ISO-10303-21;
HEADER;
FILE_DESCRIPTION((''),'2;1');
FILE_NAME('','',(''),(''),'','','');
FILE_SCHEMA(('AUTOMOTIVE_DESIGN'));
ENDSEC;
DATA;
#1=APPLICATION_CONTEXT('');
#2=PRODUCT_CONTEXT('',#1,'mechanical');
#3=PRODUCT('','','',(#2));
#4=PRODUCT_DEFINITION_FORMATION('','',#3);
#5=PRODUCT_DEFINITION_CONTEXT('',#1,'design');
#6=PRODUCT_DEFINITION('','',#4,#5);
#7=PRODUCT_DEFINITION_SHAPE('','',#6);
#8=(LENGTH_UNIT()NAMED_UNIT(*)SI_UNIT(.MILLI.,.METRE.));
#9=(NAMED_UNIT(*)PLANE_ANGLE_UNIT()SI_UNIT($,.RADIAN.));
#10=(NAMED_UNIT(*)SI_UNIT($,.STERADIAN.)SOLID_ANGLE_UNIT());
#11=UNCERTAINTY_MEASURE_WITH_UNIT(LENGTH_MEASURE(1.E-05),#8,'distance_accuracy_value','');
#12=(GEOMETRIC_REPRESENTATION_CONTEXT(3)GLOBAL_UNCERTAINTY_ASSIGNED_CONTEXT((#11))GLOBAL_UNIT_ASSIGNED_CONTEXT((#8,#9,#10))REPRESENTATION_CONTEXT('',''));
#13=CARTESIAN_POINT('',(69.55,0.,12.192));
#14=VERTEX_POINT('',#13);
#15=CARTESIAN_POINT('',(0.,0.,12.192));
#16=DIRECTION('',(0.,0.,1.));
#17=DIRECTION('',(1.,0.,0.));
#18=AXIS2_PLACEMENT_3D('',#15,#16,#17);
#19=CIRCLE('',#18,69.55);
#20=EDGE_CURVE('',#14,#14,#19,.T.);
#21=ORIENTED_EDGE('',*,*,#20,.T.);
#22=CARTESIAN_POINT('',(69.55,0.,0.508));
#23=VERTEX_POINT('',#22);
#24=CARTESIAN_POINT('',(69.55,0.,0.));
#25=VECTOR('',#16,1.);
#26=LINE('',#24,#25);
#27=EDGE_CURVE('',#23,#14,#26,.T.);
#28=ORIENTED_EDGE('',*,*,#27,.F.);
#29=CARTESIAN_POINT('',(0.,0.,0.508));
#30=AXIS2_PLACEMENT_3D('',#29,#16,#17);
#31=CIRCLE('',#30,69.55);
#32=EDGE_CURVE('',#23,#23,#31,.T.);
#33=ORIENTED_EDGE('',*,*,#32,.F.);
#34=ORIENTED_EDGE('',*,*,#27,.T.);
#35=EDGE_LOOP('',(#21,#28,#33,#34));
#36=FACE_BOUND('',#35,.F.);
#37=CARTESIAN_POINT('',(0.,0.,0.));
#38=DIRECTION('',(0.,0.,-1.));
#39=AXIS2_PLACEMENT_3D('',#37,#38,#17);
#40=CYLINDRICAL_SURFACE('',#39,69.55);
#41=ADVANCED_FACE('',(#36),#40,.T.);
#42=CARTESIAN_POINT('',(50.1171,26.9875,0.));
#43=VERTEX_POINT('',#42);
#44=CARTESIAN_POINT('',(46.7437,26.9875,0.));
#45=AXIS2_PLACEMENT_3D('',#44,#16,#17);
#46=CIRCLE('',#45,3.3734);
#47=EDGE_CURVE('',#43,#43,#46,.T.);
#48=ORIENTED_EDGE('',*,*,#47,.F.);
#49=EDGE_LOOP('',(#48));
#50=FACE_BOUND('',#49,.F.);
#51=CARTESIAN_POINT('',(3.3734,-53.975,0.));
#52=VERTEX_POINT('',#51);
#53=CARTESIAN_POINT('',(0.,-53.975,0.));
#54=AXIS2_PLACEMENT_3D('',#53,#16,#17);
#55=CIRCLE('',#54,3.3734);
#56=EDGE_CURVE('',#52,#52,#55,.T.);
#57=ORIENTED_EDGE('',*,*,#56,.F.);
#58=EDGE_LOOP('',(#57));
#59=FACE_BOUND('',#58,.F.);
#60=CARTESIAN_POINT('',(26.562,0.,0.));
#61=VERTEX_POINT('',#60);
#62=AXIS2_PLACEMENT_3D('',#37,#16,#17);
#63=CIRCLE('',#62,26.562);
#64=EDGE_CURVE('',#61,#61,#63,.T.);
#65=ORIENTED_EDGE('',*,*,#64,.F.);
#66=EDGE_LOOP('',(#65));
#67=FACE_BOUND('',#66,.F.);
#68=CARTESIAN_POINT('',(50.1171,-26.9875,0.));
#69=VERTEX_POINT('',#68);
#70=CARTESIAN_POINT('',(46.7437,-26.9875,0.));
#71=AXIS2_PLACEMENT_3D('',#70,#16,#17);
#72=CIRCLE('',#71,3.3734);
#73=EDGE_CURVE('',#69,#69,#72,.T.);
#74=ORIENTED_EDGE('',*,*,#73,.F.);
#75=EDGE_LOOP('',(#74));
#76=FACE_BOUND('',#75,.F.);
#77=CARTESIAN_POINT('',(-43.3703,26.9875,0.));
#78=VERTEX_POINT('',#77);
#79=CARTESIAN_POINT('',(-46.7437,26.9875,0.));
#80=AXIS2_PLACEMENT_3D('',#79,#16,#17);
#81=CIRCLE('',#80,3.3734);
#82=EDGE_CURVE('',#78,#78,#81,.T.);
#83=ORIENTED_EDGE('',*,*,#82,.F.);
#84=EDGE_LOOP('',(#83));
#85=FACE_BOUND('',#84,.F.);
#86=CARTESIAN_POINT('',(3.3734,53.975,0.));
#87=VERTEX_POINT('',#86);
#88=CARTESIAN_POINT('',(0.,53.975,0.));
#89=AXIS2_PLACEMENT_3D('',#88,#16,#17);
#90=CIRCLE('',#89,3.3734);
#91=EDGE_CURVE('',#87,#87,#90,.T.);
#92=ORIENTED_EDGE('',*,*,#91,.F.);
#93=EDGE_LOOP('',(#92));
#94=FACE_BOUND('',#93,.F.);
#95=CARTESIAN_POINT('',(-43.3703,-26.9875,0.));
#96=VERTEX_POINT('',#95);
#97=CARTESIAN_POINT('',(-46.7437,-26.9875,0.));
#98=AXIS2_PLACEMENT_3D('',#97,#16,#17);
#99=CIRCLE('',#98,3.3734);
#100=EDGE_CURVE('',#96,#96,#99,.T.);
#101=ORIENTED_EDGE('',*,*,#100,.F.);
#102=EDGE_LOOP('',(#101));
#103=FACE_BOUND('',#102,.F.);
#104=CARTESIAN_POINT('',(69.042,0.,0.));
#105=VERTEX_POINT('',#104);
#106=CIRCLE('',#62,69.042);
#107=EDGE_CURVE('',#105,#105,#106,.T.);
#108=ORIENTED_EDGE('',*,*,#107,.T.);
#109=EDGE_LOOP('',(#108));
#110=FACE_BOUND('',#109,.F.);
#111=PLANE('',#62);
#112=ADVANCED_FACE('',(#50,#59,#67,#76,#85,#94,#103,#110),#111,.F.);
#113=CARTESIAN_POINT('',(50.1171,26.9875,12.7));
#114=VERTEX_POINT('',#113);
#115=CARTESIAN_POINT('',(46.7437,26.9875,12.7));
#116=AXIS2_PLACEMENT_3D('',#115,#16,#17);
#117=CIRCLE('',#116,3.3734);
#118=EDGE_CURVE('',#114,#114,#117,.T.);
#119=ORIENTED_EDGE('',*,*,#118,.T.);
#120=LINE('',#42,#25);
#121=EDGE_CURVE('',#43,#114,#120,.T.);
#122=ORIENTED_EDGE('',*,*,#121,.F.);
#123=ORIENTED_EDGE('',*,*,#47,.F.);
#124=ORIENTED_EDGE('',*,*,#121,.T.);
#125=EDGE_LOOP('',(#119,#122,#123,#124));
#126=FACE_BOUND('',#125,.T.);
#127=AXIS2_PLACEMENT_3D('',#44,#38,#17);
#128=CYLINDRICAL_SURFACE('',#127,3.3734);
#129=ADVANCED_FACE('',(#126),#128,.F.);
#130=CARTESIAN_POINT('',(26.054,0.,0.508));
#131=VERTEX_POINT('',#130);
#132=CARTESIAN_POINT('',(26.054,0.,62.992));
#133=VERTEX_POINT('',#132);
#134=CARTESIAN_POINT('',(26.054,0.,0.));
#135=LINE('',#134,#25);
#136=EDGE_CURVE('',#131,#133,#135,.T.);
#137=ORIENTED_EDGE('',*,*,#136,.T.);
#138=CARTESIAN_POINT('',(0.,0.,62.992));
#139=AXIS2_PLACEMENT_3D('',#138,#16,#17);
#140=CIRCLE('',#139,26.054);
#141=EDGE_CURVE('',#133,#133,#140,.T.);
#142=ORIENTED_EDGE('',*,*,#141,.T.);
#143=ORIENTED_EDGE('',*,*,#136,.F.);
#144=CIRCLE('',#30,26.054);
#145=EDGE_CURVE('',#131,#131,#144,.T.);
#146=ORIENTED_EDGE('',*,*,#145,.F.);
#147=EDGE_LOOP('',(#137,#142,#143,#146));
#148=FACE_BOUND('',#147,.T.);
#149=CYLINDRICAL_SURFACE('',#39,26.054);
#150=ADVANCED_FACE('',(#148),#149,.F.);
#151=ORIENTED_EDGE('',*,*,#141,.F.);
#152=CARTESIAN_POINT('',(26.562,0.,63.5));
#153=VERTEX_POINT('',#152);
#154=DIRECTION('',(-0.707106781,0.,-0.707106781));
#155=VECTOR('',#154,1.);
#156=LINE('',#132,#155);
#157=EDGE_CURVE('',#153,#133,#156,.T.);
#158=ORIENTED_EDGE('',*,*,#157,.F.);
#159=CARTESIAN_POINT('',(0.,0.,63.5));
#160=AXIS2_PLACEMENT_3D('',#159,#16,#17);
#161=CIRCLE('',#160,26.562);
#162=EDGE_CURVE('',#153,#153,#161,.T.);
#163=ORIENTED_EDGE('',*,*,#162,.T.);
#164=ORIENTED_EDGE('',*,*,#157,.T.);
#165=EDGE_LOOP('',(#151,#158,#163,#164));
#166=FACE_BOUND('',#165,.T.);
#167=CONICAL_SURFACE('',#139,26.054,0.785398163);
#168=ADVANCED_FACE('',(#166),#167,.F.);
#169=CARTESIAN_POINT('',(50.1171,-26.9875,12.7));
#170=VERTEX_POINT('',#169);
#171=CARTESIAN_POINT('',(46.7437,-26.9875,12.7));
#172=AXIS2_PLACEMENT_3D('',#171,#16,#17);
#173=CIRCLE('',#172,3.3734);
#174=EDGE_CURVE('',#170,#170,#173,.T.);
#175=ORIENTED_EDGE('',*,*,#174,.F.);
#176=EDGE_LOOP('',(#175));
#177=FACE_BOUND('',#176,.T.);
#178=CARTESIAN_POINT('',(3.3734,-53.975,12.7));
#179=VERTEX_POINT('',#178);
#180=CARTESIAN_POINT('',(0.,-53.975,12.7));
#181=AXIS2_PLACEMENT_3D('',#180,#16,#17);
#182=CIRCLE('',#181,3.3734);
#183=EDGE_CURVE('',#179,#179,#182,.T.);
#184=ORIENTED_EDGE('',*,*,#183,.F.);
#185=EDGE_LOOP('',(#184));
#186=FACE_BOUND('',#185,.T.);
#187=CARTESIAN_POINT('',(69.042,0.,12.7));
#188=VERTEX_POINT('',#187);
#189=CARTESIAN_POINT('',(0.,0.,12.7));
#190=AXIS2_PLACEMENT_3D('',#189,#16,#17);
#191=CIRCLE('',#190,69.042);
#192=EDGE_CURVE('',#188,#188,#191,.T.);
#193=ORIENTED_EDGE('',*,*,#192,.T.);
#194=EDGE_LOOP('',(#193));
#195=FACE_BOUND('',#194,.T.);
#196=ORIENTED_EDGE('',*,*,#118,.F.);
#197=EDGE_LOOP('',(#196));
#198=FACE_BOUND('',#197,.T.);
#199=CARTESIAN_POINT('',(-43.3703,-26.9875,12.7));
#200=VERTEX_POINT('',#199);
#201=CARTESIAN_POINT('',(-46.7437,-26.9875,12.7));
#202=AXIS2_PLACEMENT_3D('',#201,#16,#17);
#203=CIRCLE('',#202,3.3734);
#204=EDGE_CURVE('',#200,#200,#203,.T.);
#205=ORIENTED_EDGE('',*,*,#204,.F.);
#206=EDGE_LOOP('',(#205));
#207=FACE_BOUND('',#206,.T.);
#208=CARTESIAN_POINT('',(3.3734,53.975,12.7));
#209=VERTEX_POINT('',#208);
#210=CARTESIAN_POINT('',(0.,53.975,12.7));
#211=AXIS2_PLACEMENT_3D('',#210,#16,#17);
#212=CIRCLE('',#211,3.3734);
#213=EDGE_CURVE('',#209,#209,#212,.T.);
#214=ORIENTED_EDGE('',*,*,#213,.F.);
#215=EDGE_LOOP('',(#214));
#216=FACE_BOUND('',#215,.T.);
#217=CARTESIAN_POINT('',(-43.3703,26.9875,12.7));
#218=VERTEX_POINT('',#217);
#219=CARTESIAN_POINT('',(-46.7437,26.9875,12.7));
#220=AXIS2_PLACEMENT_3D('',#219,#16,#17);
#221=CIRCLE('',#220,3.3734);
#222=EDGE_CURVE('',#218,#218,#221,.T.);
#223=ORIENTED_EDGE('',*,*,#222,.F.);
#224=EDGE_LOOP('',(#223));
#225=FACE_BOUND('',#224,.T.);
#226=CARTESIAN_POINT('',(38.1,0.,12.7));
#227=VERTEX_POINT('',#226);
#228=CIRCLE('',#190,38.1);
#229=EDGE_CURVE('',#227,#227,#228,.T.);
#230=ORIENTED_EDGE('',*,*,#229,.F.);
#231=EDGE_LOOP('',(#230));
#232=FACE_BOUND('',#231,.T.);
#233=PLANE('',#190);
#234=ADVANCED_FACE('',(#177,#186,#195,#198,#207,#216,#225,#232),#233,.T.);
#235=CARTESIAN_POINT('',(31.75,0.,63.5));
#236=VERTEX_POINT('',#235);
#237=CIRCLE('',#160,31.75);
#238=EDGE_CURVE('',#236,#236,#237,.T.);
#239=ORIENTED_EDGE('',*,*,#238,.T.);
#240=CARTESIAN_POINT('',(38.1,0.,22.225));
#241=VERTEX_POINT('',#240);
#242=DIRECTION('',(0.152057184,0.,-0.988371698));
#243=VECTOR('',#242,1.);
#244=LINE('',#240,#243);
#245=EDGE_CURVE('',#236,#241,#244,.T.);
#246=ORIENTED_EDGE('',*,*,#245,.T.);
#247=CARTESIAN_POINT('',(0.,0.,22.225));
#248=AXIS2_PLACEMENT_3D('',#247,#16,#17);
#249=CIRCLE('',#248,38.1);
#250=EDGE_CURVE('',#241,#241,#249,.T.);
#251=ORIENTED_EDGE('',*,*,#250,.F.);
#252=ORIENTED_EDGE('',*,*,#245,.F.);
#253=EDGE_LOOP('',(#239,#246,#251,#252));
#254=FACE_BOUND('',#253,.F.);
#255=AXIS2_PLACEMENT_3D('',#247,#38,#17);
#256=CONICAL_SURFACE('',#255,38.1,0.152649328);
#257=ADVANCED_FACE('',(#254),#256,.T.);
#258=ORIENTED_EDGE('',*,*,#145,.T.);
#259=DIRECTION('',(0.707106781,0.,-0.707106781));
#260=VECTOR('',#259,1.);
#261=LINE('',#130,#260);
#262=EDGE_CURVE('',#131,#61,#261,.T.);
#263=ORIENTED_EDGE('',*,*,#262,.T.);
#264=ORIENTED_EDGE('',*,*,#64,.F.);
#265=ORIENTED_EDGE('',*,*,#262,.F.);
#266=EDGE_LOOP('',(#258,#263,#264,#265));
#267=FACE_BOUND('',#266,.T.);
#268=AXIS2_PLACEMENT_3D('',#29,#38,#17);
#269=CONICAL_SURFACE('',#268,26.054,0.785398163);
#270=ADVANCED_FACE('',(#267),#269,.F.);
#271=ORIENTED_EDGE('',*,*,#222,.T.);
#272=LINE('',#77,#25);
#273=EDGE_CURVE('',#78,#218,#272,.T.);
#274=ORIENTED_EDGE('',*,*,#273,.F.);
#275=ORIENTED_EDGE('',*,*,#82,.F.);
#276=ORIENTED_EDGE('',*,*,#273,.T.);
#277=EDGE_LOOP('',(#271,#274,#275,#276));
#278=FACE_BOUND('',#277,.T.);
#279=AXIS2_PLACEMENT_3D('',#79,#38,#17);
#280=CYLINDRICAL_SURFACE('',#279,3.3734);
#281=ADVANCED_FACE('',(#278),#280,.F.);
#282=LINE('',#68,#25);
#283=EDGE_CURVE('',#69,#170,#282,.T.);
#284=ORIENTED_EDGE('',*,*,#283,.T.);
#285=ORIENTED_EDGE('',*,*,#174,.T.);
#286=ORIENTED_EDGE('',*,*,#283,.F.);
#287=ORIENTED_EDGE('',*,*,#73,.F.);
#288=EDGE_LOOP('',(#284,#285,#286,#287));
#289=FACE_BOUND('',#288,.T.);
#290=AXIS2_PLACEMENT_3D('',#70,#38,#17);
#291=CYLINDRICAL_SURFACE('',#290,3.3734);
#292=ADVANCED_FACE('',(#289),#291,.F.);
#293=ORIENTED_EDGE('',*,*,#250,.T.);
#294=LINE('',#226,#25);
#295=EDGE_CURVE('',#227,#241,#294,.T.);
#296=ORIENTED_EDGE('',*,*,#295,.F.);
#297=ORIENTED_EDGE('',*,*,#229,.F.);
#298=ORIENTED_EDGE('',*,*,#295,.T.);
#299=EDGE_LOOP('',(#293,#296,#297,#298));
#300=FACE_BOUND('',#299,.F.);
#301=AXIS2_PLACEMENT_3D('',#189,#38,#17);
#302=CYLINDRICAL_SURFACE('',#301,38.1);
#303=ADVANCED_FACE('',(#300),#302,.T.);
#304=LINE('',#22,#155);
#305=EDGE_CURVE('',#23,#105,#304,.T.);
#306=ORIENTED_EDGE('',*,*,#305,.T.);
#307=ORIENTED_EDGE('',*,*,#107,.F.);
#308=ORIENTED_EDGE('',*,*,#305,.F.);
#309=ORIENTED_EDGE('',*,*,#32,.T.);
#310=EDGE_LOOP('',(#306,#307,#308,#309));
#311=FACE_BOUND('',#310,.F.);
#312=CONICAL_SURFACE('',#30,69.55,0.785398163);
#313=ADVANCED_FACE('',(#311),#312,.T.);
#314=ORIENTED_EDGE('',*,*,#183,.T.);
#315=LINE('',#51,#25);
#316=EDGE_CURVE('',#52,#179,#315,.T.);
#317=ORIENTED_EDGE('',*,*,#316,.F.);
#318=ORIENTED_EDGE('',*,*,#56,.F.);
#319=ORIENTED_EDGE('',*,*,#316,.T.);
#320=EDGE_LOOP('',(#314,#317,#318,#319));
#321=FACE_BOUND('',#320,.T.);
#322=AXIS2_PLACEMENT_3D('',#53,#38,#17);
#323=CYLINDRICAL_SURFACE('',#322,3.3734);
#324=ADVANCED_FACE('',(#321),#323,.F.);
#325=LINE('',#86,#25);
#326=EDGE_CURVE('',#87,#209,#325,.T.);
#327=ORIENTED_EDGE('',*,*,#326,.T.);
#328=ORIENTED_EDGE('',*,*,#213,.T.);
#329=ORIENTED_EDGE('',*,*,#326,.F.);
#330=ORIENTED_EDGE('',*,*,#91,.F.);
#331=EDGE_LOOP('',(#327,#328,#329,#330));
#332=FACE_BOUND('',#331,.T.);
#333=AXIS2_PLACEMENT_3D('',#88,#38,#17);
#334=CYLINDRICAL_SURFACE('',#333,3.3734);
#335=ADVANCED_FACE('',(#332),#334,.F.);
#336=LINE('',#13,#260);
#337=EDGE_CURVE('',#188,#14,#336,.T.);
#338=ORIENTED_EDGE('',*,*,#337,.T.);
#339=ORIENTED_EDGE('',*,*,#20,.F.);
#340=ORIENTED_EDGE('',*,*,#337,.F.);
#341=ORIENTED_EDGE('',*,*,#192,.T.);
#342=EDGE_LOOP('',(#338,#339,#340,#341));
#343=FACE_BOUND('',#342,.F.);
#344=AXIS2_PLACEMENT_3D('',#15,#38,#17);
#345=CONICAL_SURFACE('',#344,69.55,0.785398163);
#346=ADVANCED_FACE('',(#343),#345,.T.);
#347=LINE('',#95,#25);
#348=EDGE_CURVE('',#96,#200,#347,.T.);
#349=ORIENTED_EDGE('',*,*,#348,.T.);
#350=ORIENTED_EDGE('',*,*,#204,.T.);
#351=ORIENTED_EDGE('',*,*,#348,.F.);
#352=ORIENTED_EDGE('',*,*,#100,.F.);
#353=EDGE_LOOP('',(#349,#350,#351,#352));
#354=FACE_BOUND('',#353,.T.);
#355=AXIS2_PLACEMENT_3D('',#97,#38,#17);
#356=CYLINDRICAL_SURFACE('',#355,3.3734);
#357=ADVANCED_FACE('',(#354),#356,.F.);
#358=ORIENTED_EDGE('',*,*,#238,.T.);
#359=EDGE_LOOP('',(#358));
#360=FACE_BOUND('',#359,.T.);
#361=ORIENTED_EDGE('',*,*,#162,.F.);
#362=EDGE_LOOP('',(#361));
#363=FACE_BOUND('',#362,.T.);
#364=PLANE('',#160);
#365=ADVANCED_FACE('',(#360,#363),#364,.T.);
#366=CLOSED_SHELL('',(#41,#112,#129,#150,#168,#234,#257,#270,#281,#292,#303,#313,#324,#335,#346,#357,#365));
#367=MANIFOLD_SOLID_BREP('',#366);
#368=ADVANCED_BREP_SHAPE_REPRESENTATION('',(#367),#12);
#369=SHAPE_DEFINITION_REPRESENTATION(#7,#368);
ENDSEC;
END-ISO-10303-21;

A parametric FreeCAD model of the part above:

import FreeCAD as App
import Part
import Sketcher
Q = App.Units.Quantity


def edges_at(feature, points):
    """Names of the edges that pass closest to the given points."""
    edges = feature.Shape.Edges
    near = lambda p: min(range(len(edges)), key=lambda i: edges[i].distToShape(Part.Vertex(*p))[0])
    return sorted({f"Edge{near(p) + 1}" for p in points})

doc = App.newDocument("Part")
body = doc.addObject("PartDesign::Body", "Body")

sketch1 = doc.addObject("Sketcher::SketchObject", "Sketch")
body.addObject(sketch1)
sketch1.AttachmentSupport = (doc.XY_Plane, [""])
sketch1.MapMode = "FlatFace"
sketch1.addGeometry([
    Part.Circle(App.Vector(0, 0, 0), App.Vector(0, 0, 1), 69.5),
    Part.Circle(App.Vector(0, -54, 0), App.Vector(0, 0, 1), 3.4),
    Part.Circle(App.Vector(-46.7, -27, 0), App.Vector(0, 0, 1), 3.4),
    Part.Circle(App.Vector(0, 0, 0), App.Vector(0, 0, 1), 26.1),
    Part.Circle(App.Vector(46.7, -27, 0), App.Vector(0, 0, 1), 3.4),
    Part.Circle(App.Vector(-46.7, 27, 0), App.Vector(0, 0, 1), 3.4),
    Part.Circle(App.Vector(0, 54, 0), App.Vector(0, 0, 1), 3.4),
    Part.Circle(App.Vector(46.7, 27, 0), App.Vector(0, 0, 1), 3.4),
], False)
sketch1.addConstraint([
    Sketcher.Constraint("Coincident", 0, 3, -1, 1),
    Sketcher.Constraint("Coincident", 3, 3, -1, 1),
    Sketcher.Constraint("Equal", 1, 2),
    Sketcher.Constraint("Equal", 2, 4),
    Sketcher.Constraint("Equal", 4, 5),
    Sketcher.Constraint("Equal", 5, 6),
    Sketcher.Constraint("Equal", 6, 7),
    Sketcher.Constraint("Symmetric", 4, 3, 5, 3, -1, 1),
    Sketcher.Constraint("Symmetric", 1, 3, 6, 3, -1, 1),
    Sketcher.Constraint("Symmetric", 2, 3, 7, 3, -1, 1),
    Sketcher.Constraint("Symmetric", 2, 3, 4, 3, -2),
    Sketcher.Constraint("PointOnObject", 1, 3, -2),
    Sketcher.Constraint("Diameter", 1, Q("0.265622 in")),
    Sketcher.Constraint("Diameter", 3, Q("2.0515 in")),
    Sketcher.Constraint("Diameter", 0, 139.1),
    Sketcher.Constraint("DistanceY", 1, 3, -1, 1, Q("2.125 in")),
    Sketcher.Constraint("DistanceY", 2, 3, 5, 3, Q("2.125 in")),
    Sketcher.Constraint("DistanceX", 2, 3, -1, 1, Q("1.8403 in")),
])
pad1 = doc.addObject("PartDesign::Pad", "Pad")
body.addObject(pad1)
pad1.Profile = sketch1
pad1.Length = Q("0.5 in")

sketch2 = doc.addObject("Sketcher::SketchObject", "Sketch001")
body.addObject(sketch2)
sketch2.AttachmentSupport = (doc.XY_Plane, [""])
sketch2.MapMode = "FlatFace"
sketch2.AttachmentOffset = App.Placement(App.Vector(0, 0, 0.5 * 25.4), App.Rotation())
sketch2.addGeometry([
    Part.Circle(App.Vector(0, 0, 0), App.Vector(0, 0, 1), 38),
    Part.Circle(App.Vector(0, 0, 0), App.Vector(0, 0, 1), 26),
], False)
sketch2.addConstraint([
    Sketcher.Constraint("Coincident", 0, 3, -1, 1),
    Sketcher.Constraint("Coincident", 1, 3, -1, 1),
    Sketcher.Constraint("Diameter", 0, Q("3 in")),
    Sketcher.Constraint("Diameter", 1, Q("2.0515 in")),
])
pad2 = doc.addObject("PartDesign::Pad", "Pad001")
body.addObject(pad2)
pad2.Profile = sketch2
pad2.Length = Q("2 in")
doc.recompute()

chamfer = doc.addObject("PartDesign::Chamfer", "Chamfer")
body.addObject(chamfer)
chamfer.Base = (pad2, edges_at(pad2, [(-38.1, 0, 63.5)]))
chamfer.ChamferType = "Two distances"
chamfer.Size = Q("0.25 in")
chamfer.Size2 = Q("1.625 in")
chamfer.FlipDirection = True
doc.recompute()

chamfer2 = doc.addObject("PartDesign::Chamfer", "Chamfer001")
body.addObject(chamfer2)
chamfer2.Base = (chamfer, edges_at(chamfer, [
    (-69.55, 0, 12.7),
    (-69.55, 0, 0),
    (-26.054, 0, 0),
    (-26.054, 0, 63.5),
]))
chamfer2.Size = Q("0.02 in")

doc.recompute()
